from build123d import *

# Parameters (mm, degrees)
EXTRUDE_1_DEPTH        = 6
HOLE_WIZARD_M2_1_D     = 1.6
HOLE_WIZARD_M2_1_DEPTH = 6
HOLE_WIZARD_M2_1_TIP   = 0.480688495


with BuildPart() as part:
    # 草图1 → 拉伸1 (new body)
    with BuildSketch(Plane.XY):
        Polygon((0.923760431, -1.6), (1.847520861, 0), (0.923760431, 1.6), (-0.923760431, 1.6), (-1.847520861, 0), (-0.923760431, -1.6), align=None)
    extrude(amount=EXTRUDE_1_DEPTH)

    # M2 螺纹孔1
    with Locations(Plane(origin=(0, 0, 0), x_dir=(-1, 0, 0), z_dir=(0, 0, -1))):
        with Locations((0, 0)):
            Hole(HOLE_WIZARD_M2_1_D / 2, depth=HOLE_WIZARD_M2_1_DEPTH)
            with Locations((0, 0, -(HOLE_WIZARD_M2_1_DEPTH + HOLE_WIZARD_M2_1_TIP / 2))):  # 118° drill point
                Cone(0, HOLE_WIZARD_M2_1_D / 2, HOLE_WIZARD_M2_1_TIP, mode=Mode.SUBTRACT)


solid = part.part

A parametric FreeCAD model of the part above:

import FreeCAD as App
import Part
import Sketcher
from FreeCAD import Vector
Q = App.Units.Quantity

doc = App.newDocument("Part")
params = doc.addObject("Spreadsheet::Sheet", "Params")
for row, (alias, value) in enumerate([
    ("pad1_length", "6 mm"),
    ("sketch2_diameter", "1.6 mm"),
    ("hole_diameter", "1.6 mm"),
    ("hole_depth", "6 mm"),
], start=1):
    params.set(f"A{row}", alias)
    params.set(f"B{row}", "=" + value)
    params.setAlias(f"B{row}", alias)

body = doc.addObject("PartDesign::Body", "Body")

# Sketch on XY plane
sketch1 = doc.addObject("Sketcher::SketchObject", "Sketch")
body.addObject(sketch1)
sketch1.AttachmentSupport = (doc.XY_Plane, [""])
sketch1.MapMode = "FlatFace"
sketch1.addGeometry([
    Part.LineSegment(Vector(0.9, -1.6, 0), Vector(1.8, 0, 0)),  # 0
    Part.LineSegment(Vector(1.8, 0, 0), Vector(0.9, 1.6, 0)),  # 1
    Part.LineSegment(Vector(0.9, 1.6, 0), Vector(-0.9, 1.6, 0)),  # 2
    Part.LineSegment(Vector(-0.9, 1.6, 0), Vector(-1.8, 0, 0)),  # 3
    Part.LineSegment(Vector(-1.8, 0, 0), Vector(-0.9, -1.6, 0)),  # 4
    Part.LineSegment(Vector(-0.9, -1.6, 0), Vector(0.9, -1.6, 0)),  # 5
], False)
sketch1.addConstraint([
    Sketcher.Constraint("Coincident", 0, 2, 1, 1),
    Sketcher.Constraint("Coincident", 1, 2, 2, 1),
    Sketcher.Constraint("Coincident", 2, 2, 3, 1),
    Sketcher.Constraint("Coincident", 3, 2, 4, 1),
    Sketcher.Constraint("Coincident", 4, 2, 5, 1),
    Sketcher.Constraint("Coincident", 5, 2, 0, 1),
    Sketcher.Constraint("Horizontal", 2),
    Sketcher.Constraint("Horizontal", 5),
    Sketcher.Constraint("Symmetric", 0, 2, 3, 2, -1, 1),
    Sketcher.Constraint("Symmetric", 1, 2, 4, 2, -1, 1),
    Sketcher.Constraint("PointOnObject", 0, 2, -1),
    Sketcher.Constraint("Parallel", 0, 3),
    Sketcher.Constraint("Vertical", 2, 2, 4, 2),
    Sketcher.Constraint("Angle", 0, Q("60 deg")),
    Sketcher.Constraint("DistanceY", -1, 1, 1, 2, 1.6),
    Sketcher.Constraint("DistanceX", 2, 2, 2, 1, 1.847521),
])
pad1 = doc.addObject("PartDesign::Pad", "Pad")
body.addObject(pad1)
pad1.Profile = sketch1
pad1.setExpression("Length", "Params.pad1_length")

# Sketch on XY plane
sketch2 = doc.addObject("Sketcher::SketchObject", "Sketch001")
body.addObject(sketch2)
sketch2.AttachmentSupport = (doc.XY_Plane, [""])
sketch2.MapMode = "FlatFace"
sketch2.addGeometry(Part.Circle(Vector(0, 0, 0), Vector(0, 0, 1), 0.8), False)
sketch2.addConstraint([
    Sketcher.Constraint("Coincident", 0, 3, -1, 1),
    Sketcher.Constraint("Diameter", 0, 1.6),
])
sketch2.setExpression("Constraints[1]", "Params.sketch2_diameter")
doc.recompute()
hole = doc.addObject("PartDesign::Hole", "Hole")
body.addObject(hole)
hole.Profile = sketch2
hole.ThreadType = "None"
hole.setExpression("Diameter", "Params.hole_diameter")
hole.DepthType = "Dimension"
hole.setExpression("Depth", "Params.hole_depth")
hole.DrillPoint = "Angled"
hole.DrillPointAngle = 118
hole.Reversed = True

doc.recompute()
